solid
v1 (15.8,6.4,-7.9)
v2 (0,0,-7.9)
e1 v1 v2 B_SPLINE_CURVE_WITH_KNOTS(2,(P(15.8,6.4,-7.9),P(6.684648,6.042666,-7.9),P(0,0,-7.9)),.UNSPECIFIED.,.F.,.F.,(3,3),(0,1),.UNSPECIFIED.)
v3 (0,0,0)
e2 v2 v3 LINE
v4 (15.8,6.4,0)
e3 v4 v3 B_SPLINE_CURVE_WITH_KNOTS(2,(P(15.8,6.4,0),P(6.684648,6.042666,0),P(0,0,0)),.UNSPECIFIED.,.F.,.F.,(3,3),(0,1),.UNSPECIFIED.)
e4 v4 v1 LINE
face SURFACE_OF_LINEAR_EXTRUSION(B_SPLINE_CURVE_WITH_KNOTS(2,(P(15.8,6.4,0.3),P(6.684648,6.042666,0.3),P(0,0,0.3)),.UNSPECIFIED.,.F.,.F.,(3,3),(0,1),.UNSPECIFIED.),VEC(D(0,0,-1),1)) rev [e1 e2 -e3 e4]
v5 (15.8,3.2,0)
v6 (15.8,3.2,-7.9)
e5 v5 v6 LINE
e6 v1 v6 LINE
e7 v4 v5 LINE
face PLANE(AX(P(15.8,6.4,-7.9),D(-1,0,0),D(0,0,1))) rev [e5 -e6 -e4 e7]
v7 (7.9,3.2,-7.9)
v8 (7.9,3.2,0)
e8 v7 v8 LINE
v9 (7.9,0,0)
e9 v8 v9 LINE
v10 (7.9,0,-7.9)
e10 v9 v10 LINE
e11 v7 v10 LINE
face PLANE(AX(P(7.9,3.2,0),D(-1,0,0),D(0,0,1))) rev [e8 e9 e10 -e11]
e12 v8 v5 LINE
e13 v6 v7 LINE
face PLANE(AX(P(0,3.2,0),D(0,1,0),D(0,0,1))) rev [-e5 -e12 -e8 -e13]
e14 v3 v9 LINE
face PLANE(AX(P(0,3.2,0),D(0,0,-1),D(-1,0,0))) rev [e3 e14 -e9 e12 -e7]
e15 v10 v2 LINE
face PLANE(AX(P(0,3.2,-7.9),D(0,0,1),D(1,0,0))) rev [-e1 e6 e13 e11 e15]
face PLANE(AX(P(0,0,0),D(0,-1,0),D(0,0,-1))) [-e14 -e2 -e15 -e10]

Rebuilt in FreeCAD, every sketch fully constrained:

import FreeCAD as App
import Part
import Sketcher

doc = App.newDocument("Part")
body = doc.addObject("PartDesign::Body", "Body")

sketch1 = doc.addObject("Sketcher::SketchObject", "Sketch")
body.addObject(sketch1)
sketch1.AttachmentSupport = (doc.XZ_Plane, [""])
sketch1.MapMode = "FlatFace"
sketch1.addGeometry([
    Part.LineSegment(App.Vector(0, -8, 0), App.Vector(0, 0, 0)),
    Part.LineSegment(App.Vector(0, 0, 0), App.Vector(8, 0, 0)),
    Part.LineSegment(App.Vector(8, 0, 0), App.Vector(8, -8, 0)),
    Part.LineSegment(App.Vector(8, -8, 0), App.Vector(0, -8, 0)),
], False)
sketch1.addConstraint([
    Sketcher.Constraint("Coincident", 0, 2, 1, 1),
    Sketcher.Constraint("Coincident", 1, 2, 2, 1),
    Sketcher.Constraint("Coincident", 2, 2, 3, 1),
    Sketcher.Constraint("Coincident", 3, 2, 0, 1),
    Sketcher.Constraint("Vertical", 0),
    Sketcher.Constraint("Horizontal", 1),
    Sketcher.Constraint("Vertical", 2),
    Sketcher.Constraint("Horizontal", 3),
    Sketcher.Constraint("Coincident", 0, 2, -1, 1),
    Sketcher.Constraint("Equal", 3, 0),
    Sketcher.Constraint("DistanceX", 1, 1, 1, 2, 7.9),
])
pad1 = doc.addObject("PartDesign::Pad", "Pad")
body.addObject(pad1)
pad1.Profile = sketch1
pad1.Length = 3.2
pad1.Reversed = True
body2 = doc.addObject("PartDesign::Body", "Body001")

sketch2 = doc.addObject("Sketcher::SketchObject", "Sketch001")
body2.addObject(sketch2)
sketch2.AttachmentSupport = (doc.getObject("XZ_Plane001"), [""])
sketch2.MapMode = "FlatFace"
sketch2.AttachmentOffset = App.Placement(App.Vector(0, 0, -3.2), App.Rotation())
sketch2.addGeometry([
    Part.LineSegment(App.Vector(8, -8, 0), App.Vector(8, 0, 0)),
    Part.LineSegment(App.Vector(8, 0, 0), App.Vector(16, 0, 0)),
    Part.LineSegment(App.Vector(16, 0, 0), App.Vector(16, -8, 0)),
    Part.LineSegment(App.Vector(16, -8, 0), App.Vector(8, -8, 0)),
], False)
sketch2.addConstraint([
    Sketcher.Constraint("Coincident", 0, 2, 1, 1),
    Sketcher.Constraint("Coincident", 1, 2, 2, 1),
    Sketcher.Constraint("Coincident", 2, 2, 3, 1),
    Sketcher.Constraint("Coincident", 3, 2, 0, 1),
    Sketcher.Constraint("Vertical", 0),
    Sketcher.Constraint("Horizontal", 1),
    Sketcher.Constraint("Vertical", 2),
    Sketcher.Constraint("Horizontal", 3),
    Sketcher.Constraint("PointOnObject", 0, 2, -1),
    Sketcher.Constraint("Equal", 3, 0),
    Sketcher.Constraint("DistanceX", 1, 1, 1, 2, 7.9),
    Sketcher.Constraint("DistanceX", -1, 1, 0, 2, 7.9),
])
pad2 = doc.addObject("PartDesign::Pad", "Pad001")
body2.addObject(pad2)
pad2.Profile = sketch2
pad2.Length = 3.2
pad2.Reversed = True
body.AllowCompound = True
doc.recompute()

boolean = doc.addObject("PartDesign::Boolean", "Boolean")
body.addObject(boolean)
boolean.Type = "Fuse"
boolean.addObjects([body2])

sketch3 = doc.addObject("Sketcher::SketchObject", "Sketch002")
body.addObject(sketch3)
sketch3.AttachmentSupport = (doc.YZ_Plane, [""])
sketch3.MapMode = "FlatFace"
sketch3.AttachmentOffset = App.Placement(App.Vector(0, 0, 7.9), App.Rotation())
sketch3.addGeometry([
    Part.LineSegment(App.Vector(6.4, -7.9, 0), App.Vector(3.2, -7.9, 0)),
    Part.LineSegment(App.Vector(3.2, -7.9, 0), App.Vector(3.2, 0, 0)),
    Part.LineSegment(App.Vector(3.2, 0, 0), App.Vector(6.4, 0, 0)),
    Part.LineSegment(App.Vector(6.4, 0, 0), App.Vector(6.4, -7.9, 0)),
], False)
sketch3.addConstraint([
    Sketcher.Constraint("Coincident", 0, 2, 1, 1),
    Sketcher.Constraint("Coincident", 1, 2, 2, 1),
    Sketcher.Constraint("Coincident", 2, 2, 3, 1),
    Sketcher.Constraint("Coincident", 3, 2, 0, 1),
    Sketcher.Constraint("Horizontal", 0),
    Sketcher.Constraint("Vertical", 1),
    Sketcher.Constraint("Horizontal", 2),
    Sketcher.Constraint("Vertical", 3),
    Sketcher.Constraint("PointOnObject", 1, 2, -1),
    Sketcher.Constraint("DistanceX", 0, 2, 0, 1, 3.2),
    Sketcher.Constraint("DistanceY", 1, 1, 1, 2, 7.9),
    Sketcher.Constraint("DistanceX", -1, 1, 0, 2, 3.2),
])
pad3 = doc.addObject("PartDesign::Pad", "Pad002")
body.addObject(pad3)
pad3.Profile = sketch3
pad3.Length = 7.2
pad3.Reversed = True

sketch4 = doc.addObject("Sketcher::SketchObject", "Sketch003")
body.addObject(sketch4)
sketch4.AttachmentSupport = (doc.XY_Plane, [""])
sketch4.MapMode = "FlatFace"
sketch4.AttachmentOffset = App.Placement(App.Vector(0, 0, -7.9), App.Rotation())
sketch4.addGeometry([
    Part.LineSegment(App.Vector(0, 6.4, 0), App.Vector(15.8, 6.4, 0)),
    Part.BSplineCurve([App.Vector(15.8, 6.4, 0), App.Vector(6.684648, 6.042666, 0), App.Vector(0, 0, 0)], [3, 3], [0, 1], False, 2, [1, 1, 1], False),
    Part.LineSegment(App.Vector(0, 0, 0), App.Vector(0, 6.4, 0)),
], False)
sketch4.addConstraint([
    Sketcher.Constraint("Block", 1),
    Sketcher.Constraint("Coincident", 0, 2, 1, 1),
    Sketcher.Constraint("Coincident", 1, 2, 2, 1),
    Sketcher.Constraint("Coincident", 2, 2, 0, 1),
    Sketcher.Constraint("Horizontal", 0),
    Sketcher.Constraint("Vertical", 2),
])
pocket1 = doc.addObject("PartDesign::Pocket", "Pocket")
body.addObject(pocket1)
pocket1.Profile = sketch4
pocket1.Length = 8.2
pocket1.Reversed = True

doc.recompute()
